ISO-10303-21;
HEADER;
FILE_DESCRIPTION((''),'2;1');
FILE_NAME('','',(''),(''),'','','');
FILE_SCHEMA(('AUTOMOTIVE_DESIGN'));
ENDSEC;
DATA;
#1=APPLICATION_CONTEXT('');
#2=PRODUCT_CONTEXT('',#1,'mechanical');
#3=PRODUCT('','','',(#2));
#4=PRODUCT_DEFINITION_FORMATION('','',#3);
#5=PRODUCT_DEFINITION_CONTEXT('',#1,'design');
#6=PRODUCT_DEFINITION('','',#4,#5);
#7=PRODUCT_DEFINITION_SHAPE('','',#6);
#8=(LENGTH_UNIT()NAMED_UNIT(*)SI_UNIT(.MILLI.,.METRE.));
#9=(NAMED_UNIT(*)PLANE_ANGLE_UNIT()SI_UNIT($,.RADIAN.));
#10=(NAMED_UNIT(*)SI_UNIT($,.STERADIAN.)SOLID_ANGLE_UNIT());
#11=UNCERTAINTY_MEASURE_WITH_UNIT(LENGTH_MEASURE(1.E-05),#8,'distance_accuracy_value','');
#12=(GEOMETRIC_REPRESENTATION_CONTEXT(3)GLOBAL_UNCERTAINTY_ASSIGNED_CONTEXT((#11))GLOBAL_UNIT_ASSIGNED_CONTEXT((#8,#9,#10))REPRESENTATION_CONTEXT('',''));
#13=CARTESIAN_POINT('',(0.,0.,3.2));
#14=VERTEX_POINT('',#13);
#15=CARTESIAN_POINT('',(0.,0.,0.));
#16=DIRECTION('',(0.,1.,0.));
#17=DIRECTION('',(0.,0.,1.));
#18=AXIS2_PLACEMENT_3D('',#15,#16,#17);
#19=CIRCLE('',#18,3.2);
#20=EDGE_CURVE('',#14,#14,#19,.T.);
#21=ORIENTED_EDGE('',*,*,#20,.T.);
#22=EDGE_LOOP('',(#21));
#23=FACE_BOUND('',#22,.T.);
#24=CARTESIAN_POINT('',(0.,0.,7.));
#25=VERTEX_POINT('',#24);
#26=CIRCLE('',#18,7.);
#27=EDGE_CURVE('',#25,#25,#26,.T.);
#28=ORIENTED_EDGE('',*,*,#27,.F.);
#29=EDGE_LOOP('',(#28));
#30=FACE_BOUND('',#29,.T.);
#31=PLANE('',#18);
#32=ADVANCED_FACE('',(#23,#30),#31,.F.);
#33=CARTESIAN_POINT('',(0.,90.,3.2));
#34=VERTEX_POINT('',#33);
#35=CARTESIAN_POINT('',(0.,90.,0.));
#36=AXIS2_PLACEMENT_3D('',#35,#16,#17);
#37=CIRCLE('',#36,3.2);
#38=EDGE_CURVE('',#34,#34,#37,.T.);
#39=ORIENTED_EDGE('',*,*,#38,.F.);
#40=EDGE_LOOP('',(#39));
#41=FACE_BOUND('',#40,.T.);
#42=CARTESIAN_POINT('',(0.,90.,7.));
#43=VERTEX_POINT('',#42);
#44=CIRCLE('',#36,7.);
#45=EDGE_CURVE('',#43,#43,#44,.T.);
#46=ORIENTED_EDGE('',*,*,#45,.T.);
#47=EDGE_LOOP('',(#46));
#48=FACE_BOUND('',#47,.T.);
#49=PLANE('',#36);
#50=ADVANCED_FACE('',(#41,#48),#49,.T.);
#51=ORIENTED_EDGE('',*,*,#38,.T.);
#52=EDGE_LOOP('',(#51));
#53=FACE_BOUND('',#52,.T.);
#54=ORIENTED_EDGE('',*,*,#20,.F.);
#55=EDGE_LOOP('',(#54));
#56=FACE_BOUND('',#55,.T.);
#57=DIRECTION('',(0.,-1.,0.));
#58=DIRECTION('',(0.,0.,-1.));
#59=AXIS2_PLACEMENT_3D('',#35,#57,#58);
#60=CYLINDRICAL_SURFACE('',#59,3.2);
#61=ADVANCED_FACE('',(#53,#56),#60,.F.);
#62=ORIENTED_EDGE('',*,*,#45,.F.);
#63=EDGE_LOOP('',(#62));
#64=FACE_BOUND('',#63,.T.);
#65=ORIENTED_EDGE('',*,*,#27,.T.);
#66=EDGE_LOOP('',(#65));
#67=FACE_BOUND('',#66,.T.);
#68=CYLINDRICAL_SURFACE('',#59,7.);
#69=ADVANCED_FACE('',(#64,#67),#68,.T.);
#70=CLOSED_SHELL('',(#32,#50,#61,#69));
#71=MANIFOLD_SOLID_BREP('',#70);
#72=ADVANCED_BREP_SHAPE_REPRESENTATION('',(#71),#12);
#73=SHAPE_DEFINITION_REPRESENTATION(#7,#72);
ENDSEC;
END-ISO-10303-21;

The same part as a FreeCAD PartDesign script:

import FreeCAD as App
import Part
import Sketcher
Q = App.Units.Quantity

doc = App.newDocument("Part")
body = doc.addObject("PartDesign::Body", "Body")

# Sketch on XZ plane
sketch1 = body.newObject("Sketcher::SketchObject", "Sketch")
sketch1.AttachmentSupport = (doc.getObject("XZ_Plane"), [""])
sketch1.MapMode = "FlatFace"
sketch1.addGeometry(Part.Circle(App.Vector(0, 0, 0), App.Vector(0, 0, 1), 7), False)
sketch1.addGeometry(Part.Circle(App.Vector(0, 0, 0), App.Vector(0, 0, 1), 3.2), False)
sketch1.addConstraint(Sketcher.Constraint("Coincident", 0, 3, -1, 1))
sketch1.addConstraint(Sketcher.Constraint("Coincident", 1, 3, -1, 1))
sketch1.addConstraint(Sketcher.Constraint("Diameter", 0, Q("14 mm")))
sketch1.addConstraint(Sketcher.Constraint("Diameter", 1, Q("6.4 mm")))
pad1 = body.newObject("PartDesign::Pad", "Pad")
pad1.Profile = sketch1
pad1.Length = 90
pad1.Reversed = True

doc.recompute()
